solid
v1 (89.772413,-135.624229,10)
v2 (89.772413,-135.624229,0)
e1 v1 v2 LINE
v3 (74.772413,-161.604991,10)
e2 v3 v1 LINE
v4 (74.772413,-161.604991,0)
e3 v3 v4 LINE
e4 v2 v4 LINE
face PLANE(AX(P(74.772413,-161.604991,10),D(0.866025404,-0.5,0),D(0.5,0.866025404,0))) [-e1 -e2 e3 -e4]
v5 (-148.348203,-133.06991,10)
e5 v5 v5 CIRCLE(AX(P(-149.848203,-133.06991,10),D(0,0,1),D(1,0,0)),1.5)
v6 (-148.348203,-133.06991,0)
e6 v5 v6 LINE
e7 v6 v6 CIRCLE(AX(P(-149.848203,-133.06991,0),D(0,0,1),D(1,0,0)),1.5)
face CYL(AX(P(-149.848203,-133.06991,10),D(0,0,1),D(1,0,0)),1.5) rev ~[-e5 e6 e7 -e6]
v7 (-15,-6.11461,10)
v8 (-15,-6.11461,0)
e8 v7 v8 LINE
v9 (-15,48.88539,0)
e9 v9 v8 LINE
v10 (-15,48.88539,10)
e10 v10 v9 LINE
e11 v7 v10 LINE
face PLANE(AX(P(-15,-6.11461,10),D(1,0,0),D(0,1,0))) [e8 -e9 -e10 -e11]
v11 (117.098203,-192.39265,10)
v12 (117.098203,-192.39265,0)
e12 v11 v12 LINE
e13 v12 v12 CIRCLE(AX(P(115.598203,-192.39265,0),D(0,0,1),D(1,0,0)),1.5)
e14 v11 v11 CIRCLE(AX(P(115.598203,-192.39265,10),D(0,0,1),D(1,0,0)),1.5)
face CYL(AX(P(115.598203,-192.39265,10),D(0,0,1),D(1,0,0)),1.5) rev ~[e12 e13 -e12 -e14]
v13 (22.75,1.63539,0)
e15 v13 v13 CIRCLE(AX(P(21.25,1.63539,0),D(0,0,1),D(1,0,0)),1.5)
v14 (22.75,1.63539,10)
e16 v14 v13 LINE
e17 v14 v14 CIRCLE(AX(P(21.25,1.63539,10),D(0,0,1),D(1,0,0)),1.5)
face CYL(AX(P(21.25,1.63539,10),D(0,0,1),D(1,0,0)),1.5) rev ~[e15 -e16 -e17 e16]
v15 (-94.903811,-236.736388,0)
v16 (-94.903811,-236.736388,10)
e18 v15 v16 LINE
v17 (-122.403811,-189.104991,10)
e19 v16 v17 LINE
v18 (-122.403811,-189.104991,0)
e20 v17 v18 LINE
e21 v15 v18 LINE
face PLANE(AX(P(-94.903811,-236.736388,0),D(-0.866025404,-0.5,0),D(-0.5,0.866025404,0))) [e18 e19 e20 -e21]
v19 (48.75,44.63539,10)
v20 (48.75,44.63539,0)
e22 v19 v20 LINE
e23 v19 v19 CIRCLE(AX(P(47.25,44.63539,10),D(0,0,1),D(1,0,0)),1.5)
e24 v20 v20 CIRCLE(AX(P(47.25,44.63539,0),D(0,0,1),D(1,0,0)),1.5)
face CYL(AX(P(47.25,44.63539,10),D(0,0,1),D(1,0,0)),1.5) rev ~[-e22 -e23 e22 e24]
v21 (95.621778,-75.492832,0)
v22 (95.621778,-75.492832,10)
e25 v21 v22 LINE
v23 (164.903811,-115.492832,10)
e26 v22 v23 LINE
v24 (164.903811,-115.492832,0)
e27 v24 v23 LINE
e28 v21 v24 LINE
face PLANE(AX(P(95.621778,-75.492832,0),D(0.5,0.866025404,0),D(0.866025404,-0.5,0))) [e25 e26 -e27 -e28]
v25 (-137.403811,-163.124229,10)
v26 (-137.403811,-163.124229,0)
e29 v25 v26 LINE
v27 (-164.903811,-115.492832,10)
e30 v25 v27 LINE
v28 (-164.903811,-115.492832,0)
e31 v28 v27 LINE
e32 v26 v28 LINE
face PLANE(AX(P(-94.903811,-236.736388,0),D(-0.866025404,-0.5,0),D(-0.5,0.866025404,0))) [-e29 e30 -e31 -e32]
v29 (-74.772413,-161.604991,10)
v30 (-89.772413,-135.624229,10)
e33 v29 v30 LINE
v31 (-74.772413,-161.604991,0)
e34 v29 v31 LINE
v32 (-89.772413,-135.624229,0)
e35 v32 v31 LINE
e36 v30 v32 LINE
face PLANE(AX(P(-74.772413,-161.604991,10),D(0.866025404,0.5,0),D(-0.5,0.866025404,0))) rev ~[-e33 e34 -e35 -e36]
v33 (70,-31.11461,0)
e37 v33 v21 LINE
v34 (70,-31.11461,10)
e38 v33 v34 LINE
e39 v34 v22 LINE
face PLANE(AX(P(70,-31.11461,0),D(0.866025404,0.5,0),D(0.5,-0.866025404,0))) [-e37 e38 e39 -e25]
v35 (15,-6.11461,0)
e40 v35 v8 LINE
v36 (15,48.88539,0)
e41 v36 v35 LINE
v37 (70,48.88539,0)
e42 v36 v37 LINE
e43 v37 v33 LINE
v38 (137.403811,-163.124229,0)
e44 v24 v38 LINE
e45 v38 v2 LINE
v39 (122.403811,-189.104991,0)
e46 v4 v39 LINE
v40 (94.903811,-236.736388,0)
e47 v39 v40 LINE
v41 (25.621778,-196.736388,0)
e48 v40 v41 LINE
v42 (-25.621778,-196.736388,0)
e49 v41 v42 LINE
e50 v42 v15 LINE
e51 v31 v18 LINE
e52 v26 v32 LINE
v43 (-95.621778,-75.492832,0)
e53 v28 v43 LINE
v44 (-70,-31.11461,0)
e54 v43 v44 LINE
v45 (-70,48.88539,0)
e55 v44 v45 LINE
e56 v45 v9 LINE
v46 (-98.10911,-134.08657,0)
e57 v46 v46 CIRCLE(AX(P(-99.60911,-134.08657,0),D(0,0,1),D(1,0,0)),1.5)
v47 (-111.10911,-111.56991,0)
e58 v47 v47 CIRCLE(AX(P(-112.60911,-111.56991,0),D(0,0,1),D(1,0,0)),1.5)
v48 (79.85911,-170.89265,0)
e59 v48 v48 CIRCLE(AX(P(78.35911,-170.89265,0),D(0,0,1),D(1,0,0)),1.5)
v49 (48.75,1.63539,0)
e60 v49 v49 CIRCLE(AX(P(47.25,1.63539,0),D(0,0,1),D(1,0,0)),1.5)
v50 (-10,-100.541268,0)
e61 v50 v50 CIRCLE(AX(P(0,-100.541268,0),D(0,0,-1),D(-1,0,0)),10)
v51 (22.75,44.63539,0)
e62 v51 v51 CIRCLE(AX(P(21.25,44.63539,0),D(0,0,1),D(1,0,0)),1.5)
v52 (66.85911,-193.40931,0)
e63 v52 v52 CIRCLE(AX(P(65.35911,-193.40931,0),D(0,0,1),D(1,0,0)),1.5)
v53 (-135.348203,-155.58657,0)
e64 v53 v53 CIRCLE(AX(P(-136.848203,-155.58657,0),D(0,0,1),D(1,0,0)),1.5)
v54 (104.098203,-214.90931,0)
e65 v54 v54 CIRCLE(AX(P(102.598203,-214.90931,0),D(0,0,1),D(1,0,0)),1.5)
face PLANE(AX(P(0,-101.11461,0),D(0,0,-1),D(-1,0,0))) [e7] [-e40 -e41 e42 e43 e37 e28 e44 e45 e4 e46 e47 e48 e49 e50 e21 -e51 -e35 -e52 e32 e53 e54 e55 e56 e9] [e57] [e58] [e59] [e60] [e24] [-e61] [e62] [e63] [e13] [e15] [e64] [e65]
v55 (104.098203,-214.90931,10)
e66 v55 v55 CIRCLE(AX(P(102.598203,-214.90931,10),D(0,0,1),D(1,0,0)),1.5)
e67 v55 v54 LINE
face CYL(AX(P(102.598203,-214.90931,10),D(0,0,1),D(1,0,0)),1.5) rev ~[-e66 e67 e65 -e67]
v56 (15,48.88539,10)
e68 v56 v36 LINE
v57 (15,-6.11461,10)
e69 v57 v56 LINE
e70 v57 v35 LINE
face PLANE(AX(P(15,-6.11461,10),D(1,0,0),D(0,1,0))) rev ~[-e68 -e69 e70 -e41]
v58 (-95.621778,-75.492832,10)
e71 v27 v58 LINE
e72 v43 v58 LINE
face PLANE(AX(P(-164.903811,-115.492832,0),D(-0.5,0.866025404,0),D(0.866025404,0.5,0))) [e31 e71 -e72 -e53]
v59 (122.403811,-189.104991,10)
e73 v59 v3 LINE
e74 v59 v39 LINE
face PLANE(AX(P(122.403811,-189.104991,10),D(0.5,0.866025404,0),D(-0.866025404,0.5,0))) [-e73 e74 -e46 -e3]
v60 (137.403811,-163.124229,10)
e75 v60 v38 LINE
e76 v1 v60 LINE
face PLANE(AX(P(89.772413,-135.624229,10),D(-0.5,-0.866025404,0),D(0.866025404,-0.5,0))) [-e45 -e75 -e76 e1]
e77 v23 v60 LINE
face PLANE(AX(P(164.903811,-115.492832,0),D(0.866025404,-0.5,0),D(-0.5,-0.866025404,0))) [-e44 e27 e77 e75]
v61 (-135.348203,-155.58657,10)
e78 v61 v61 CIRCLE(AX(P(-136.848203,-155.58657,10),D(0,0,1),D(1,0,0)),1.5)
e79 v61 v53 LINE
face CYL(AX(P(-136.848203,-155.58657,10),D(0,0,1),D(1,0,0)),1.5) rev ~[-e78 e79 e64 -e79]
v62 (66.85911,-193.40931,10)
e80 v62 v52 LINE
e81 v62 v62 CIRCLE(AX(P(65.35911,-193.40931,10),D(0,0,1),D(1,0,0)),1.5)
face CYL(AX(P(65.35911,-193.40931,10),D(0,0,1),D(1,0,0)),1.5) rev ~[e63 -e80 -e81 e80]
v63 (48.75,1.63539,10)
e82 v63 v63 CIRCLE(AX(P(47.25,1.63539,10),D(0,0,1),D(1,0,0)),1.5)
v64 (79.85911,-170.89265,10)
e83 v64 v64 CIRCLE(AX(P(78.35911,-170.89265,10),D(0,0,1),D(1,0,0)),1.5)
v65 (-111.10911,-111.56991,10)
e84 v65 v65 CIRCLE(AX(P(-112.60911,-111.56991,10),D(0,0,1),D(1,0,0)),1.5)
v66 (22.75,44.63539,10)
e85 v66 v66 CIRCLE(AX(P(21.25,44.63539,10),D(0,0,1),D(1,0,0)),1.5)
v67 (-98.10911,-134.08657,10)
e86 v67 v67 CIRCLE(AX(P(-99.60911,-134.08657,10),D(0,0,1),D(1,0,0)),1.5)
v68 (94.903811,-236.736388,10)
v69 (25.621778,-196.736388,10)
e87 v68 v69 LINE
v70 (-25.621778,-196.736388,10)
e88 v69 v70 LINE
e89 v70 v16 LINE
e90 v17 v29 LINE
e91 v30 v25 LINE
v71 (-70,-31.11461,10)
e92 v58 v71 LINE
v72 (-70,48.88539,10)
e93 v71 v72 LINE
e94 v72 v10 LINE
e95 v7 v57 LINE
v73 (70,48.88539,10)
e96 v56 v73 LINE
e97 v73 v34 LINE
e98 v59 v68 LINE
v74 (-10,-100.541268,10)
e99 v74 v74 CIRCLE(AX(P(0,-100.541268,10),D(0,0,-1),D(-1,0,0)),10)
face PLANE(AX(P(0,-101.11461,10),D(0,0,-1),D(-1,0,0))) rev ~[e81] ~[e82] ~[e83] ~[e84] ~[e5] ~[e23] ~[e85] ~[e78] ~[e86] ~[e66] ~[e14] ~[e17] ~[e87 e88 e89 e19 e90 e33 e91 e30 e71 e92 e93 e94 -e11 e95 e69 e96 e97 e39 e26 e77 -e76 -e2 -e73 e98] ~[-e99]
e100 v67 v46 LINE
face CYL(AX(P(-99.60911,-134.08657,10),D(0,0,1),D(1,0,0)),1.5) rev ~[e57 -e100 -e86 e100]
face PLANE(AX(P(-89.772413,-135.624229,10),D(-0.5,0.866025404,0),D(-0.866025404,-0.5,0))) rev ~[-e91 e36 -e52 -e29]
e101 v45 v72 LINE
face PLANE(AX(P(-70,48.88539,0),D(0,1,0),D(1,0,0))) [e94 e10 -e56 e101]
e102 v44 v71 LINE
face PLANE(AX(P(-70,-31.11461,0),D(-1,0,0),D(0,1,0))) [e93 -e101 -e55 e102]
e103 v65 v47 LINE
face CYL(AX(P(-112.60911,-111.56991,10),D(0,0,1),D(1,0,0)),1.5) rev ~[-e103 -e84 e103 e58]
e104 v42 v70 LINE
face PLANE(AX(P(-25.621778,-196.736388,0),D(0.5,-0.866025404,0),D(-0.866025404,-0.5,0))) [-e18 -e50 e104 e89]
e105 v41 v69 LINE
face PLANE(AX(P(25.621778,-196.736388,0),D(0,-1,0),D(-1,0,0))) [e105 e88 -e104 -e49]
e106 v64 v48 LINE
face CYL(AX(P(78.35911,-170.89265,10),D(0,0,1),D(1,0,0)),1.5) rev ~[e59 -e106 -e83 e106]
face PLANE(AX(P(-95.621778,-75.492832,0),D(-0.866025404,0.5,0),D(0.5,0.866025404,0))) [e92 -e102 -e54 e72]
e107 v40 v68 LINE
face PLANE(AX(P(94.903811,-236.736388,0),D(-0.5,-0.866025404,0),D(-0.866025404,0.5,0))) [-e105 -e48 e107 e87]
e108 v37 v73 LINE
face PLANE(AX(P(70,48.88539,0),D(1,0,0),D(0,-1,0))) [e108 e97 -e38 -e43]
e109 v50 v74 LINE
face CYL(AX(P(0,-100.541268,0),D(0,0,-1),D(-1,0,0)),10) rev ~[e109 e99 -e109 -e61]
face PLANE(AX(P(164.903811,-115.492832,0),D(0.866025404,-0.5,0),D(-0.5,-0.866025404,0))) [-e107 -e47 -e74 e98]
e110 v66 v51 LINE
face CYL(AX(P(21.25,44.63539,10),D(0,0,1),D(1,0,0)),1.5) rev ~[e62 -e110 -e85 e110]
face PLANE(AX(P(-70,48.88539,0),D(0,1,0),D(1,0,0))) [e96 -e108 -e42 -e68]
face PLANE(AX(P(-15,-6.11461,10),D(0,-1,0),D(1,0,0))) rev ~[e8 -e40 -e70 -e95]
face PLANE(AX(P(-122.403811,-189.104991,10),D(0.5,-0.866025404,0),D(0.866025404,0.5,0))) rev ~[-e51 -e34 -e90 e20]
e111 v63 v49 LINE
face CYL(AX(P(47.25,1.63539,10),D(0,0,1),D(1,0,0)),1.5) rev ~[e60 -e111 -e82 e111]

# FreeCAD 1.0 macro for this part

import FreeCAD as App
import Part
import Sketcher
from FreeCAD import Vector
Q = App.Units.Quantity

doc = App.newDocument("Part")
params = doc.addObject("Spreadsheet::Sheet", "Params")
for row, (alias, value) in enumerate([
    ("sketch1_width", "140 mm"),
    ("sketch1_height", "80 mm"),
    ("sketch1_length", "80 mm"),
    ("sketch1_length2", "140 mm"),
    ("pad1_length", "10 mm"),
    ("sketch2_diameter", "20 mm"),
    ("sketch3_length", "55 mm"),
    ("sketch3_length2", "30 mm"),
    ("sketch4_length", "30 mm"),
    ("sketch4_length2", "55 mm"),
    ("sketch5_width", "30 mm"),
    ("sketch5_height", "55 mm"),
    ("sketch6_diameter", "3 mm"),
    ("pocket5_length", "10 mm"),
    ("sketch7_diameter", "3 mm"),
    ("pocket6_length", "60 mm"),
], start=1):
    params.set(f"A{row}", alias)
    params.set(f"B{row}", "=" + value)
    params.setAlias(f"B{row}", alias)

body = doc.addObject("PartDesign::Body", "Body")

# Sketch on XY plane
sketch1 = body.newObject("Sketcher::SketchObject", "Sketch")
sketch1.AttachmentSupport = (doc.getObject("XY_Plane"), [""])
sketch1.MapMode = "FlatFace"
sketch1.addGeometry([
    Part.LineSegment(Vector(70, 48.88539, 0), Vector(-70, 48.88539, 0)),  # 0
    Part.LineSegment(Vector(-70, 48.88539, 0), Vector(-70, -31.11461, 0)),  # 1
    Part.LineSegment(Vector(-70, -31.11461, 0), Vector(-95.621778, -75.492832, 0)),  # 2
    Part.LineSegment(Vector(-95.621778, -75.492832, 0), Vector(-164.903811, -115.492832, 0)),  # 3
    Part.LineSegment(Vector(-164.903811, -115.492832, 0), Vector(-94.903811, -236.736388, 0)),  # 4
    Part.LineSegment(Vector(-94.903811, -236.736388, 0), Vector(-25.621778, -196.736388, 0)),  # 5
    Part.LineSegment(Vector(-25.621778, -196.736388, 0), Vector(25.621778, -196.736388, 0)),  # 6
    Part.LineSegment(Vector(25.621778, -196.736388, 0), Vector(94.903811, -236.736388, 0)),  # 7
    Part.LineSegment(Vector(94.903811, -236.736388, 0), Vector(164.903811, -115.492832, 0)),  # 8
    Part.LineSegment(Vector(164.903811, -115.492832, 0), Vector(95.621778, -75.492832, 0)),  # 9
    Part.LineSegment(Vector(95.621778, -75.492832, 0), Vector(70, -31.11461, 0)),  # 10
    Part.LineSegment(Vector(70, -31.11461, 0), Vector(70, 48.88539, 0)),  # 11
], False)
sketch1.addConstraint([
    Sketcher.Constraint("Coincident", 0, 2, 1, 1),
    Sketcher.Constraint("Coincident", 1, 2, 2, 1),
    Sketcher.Constraint("Coincident", 2, 2, 3, 1),
    Sketcher.Constraint("Coincident", 3, 2, 4, 1),
    Sketcher.Constraint("Coincident", 4, 2, 5, 1),
    Sketcher.Constraint("Coincident", 5, 2, 6, 1),
    Sketcher.Constraint("Coincident", 6, 2, 7, 1),
    Sketcher.Constraint("Coincident", 7, 2, 8, 1),
    Sketcher.Constraint("Coincident", 8, 2, 9, 1),
    Sketcher.Constraint("Coincident", 9, 2, 10, 1),
    Sketcher.Constraint("Coincident", 10, 2, 11, 1),
    Sketcher.Constraint("Coincident", 11, 2, 0, 1),
    Sketcher.Constraint("Horizontal", 0),
    Sketcher.Constraint("Vertical", 1),
    Sketcher.Constraint("Horizontal", 6),
    Sketcher.Constraint("Vertical", 11),
    Sketcher.Constraint("Symmetric", 4, 2, 7, 2, -2),
    Sketcher.Constraint("Symmetric", 3, 2, 8, 2, -2),
    Sketcher.Constraint("Symmetric", 2, 2, 9, 2, -2),
    Sketcher.Constraint("Symmetric", 1, 2, 10, 2, -2),
    Sketcher.Constraint("Perpendicular", 3, 4),
    Sketcher.Constraint("Perpendicular", 4, 5),
    Sketcher.Constraint("Perpendicular", 2, 7),
    Sketcher.Constraint("Perpendicular", 7, 8),
    Sketcher.Constraint("Equal", 3, 5),
    Sketcher.Constraint("DistanceX", 0, 2, 0, 1, Q("140 mm")),
    Sketcher.Constraint("DistanceY", 1, 2, 1, 1, Q("80 mm")),
    Sketcher.Constraint("Angle", 2, Q("-120 deg")),
    Sketcher.Constraint("Distance", 3, Q("80 mm")),
    Sketcher.Constraint("Distance", 4, Q("140 mm")),
    Sketcher.Constraint("DistanceX", 6, 1, 6, 2, Q("51.243557 mm")),
    Sketcher.Constraint("DistanceY", -1, 1, 0, 2, Q("48.88539 mm")),
])
sketch1.setExpression("Constraints[25]", "Params.sketch1_width")
sketch1.setExpression("Constraints[26]", "Params.sketch1_height")
sketch1.setExpression("Constraints[28]", "Params.sketch1_length")
sketch1.setExpression("Constraints[29]", "Params.sketch1_length2")
pad1 = body.newObject("PartDesign::Pad", "Pad")
pad1.Profile = sketch1
pad1.setExpression("Length", "Params.pad1_length")

# Sketch on XY plane
sketch2 = body.newObject("Sketcher::SketchObject", "Sketch001")
sketch2.AttachmentSupport = (doc.getObject("XY_Plane"), [""])
sketch2.MapMode = "FlatFace"
sketch2.addGeometry(Part.Circle(Vector(0, -100.541268, 0), Vector(0, 0, 1), 10), False)
sketch2.addConstraint([
    Sketcher.Constraint("PointOnObject", 0, 3, -2),
    Sketcher.Constraint("Diameter", 0, Q("20 mm")),
    Sketcher.Constraint("DistanceY", 0, 3, -1, 1, Q("100.541268 mm")),
])
sketch2.setExpression("Constraints[1]", "Params.sketch2_diameter")
pocket1 = body.newObject("PartDesign::Pocket", "Pocket")
pocket1.Profile = sketch2
pocket1.Type = "ThroughAll"
pocket1.Reversed = True

# Sketch on XY plane
sketch3 = body.newObject("Sketcher::SketchObject", "Sketch002")
sketch3.AttachmentSupport = (doc.getObject("XY_Plane"), [""])
sketch3.MapMode = "FlatFace"
sketch3.AttachmentOffset = App.Placement(Vector(0, 0, 10), App.Rotation())
sketch3.addGeometry([
    Part.LineSegment(Vector(-89.772413, -135.624229, 0), Vector(-137.403811, -163.124229, 0)),
    Part.LineSegment(Vector(-137.403811, -163.124229, 0), Vector(-122.403811, -189.104991, 0)),
    Part.LineSegment(Vector(-122.403811, -189.104991, 0), Vector(-74.772413, -161.604991, 0)),
    Part.LineSegment(Vector(-74.772413, -161.604991, 0), Vector(-89.772413, -135.624229, 0)),
], False)
sketch3.addConstraint([
    Sketcher.Constraint("Coincident", 0, 2, 1, 1),
    Sketcher.Constraint("Coincident", 1, 2, 2, 1),
    Sketcher.Constraint("Coincident", 2, 2, 3, 1),
    Sketcher.Constraint("Coincident", 3, 2, 0, 1),
    Sketcher.Constraint("Perpendicular", 0, 1),
    Sketcher.Constraint("Perpendicular", 1, 2),
    Sketcher.Constraint("Perpendicular", 2, 3),
    Sketcher.Constraint("Angle", 0, Q("-150 deg")),
    Sketcher.Constraint("Distance", 0, Q("55 mm")),
    Sketcher.Constraint("Distance", 1, Q("30 mm")),
    Sketcher.Constraint("DistanceX", 0, 2, -1, 1, Q("137.403811 mm")),
    Sketcher.Constraint("DistanceY", 0, 2, -1, 1, Q("163.124229 mm")),
])
sketch3.setExpression("Constraints[8]", "Params.sketch3_length")
sketch3.setExpression("Constraints[9]", "Params.sketch3_length2")
pocket2 = body.newObject("PartDesign::Pocket", "Pocket001")
pocket2.Profile = sketch3
pocket2.Type = "ThroughAll"

# Sketch on XY plane
sketch4 = body.newObject("Sketcher::SketchObject", "Sketch003")
sketch4.AttachmentSupport = (doc.getObject("XY_Plane"), [""])
sketch4.MapMode = "FlatFace"
sketch4.AttachmentOffset = App.Placement(Vector(0, 0, 10), App.Rotation())
sketch4.addGeometry([
    Part.LineSegment(Vector(122.403811, -189.104991, 0), Vector(137.403811, -163.124229, 0)),
    Part.LineSegment(Vector(137.403811, -163.124229, 0), Vector(89.772413, -135.624229, 0)),
    Part.LineSegment(Vector(89.772413, -135.624229, 0), Vector(74.772413, -161.604991, 0)),
    Part.LineSegment(Vector(74.772413, -161.604991, 0), Vector(122.403811, -189.104991, 0)),
], False)
sketch4.addConstraint([
    Sketcher.Constraint("Coincident", 0, 2, 1, 1),
    Sketcher.Constraint("Coincident", 1, 2, 2, 1),
    Sketcher.Constraint("Coincident", 2, 2, 3, 1),
    Sketcher.Constraint("Coincident", 3, 2, 0, 1),
    Sketcher.Constraint("Perpendicular", 0, 1),
    Sketcher.Constraint("Perpendicular", 1, 2),
    Sketcher.Constraint("Perpendicular", 2, 3),
    Sketcher.Constraint("Angle", 0, Q("60 deg")),
    Sketcher.Constraint("Distance", 0, Q("30 mm")),
    Sketcher.Constraint("Distance", 1, Q("55 mm")),
    Sketcher.Constraint("DistanceX", -1, 1, 0, 2, Q("137.403811 mm")),
    Sketcher.Constraint("DistanceY", 0, 2, -1, 1, Q("163.124229 mm")),
])
sketch4.setExpression("Constraints[8]", "Params.sketch4_length")
sketch4.setExpression("Constraints[9]", "Params.sketch4_length2")
pocket3 = body.newObject("PartDesign::Pocket", "Pocket002")
pocket3.Profile = sketch4
pocket3.Type = "ThroughAll"

# Sketch on XY plane
sketch5 = body.newObject("Sketcher::SketchObject", "Sketch004")
sketch5.AttachmentSupport = (doc.getObject("XY_Plane"), [""])
sketch5.MapMode = "FlatFace"
sketch5.AttachmentOffset = App.Placement(Vector(0, 0, 10), App.Rotation())
sketch5.addGeometry([
    Part.LineSegment(Vector(-15, 48.88539, 0), Vector(-15, -6.11461, 0)),
    Part.LineSegment(Vector(-15, -6.11461, 0), Vector(15, -6.11461, 0)),
    Part.LineSegment(Vector(15, -6.11461, 0), Vector(15, 48.88539, 0)),
    Part.LineSegment(Vector(15, 48.88539, 0), Vector(-15, 48.88539, 0)),
], False)
sketch5.addConstraint([
    Sketcher.Constraint("Coincident", 0, 2, 1, 1),
    Sketcher.Constraint("Coincident", 1, 2, 2, 1),
    Sketcher.Constraint("Coincident", 2, 2, 3, 1),
    Sketcher.Constraint("Coincident", 3, 2, 0, 1),
    Sketcher.Constraint("Vertical", 0),
    Sketcher.Constraint("Horizontal", 1),
    Sketcher.Constraint("Vertical", 2),
    Sketcher.Constraint("Horizontal", 3),
    Sketcher.Constraint("DistanceX", 1, 1, 1, 2, Q("30 mm")),
    Sketcher.Constraint("DistanceY", 0, 2, 0, 1, Q("55 mm")),
    Sketcher.Constraint("DistanceX", 0, 2, -1, 1, Q("15 mm")),
    Sketcher.Constraint("DistanceY", 0, 2, -1, 1, Q("6.11461 mm")),
])
sketch5.setExpression("Constraints[8]", "Params.sketch5_width")
sketch5.setExpression("Constraints[9]", "Params.sketch5_height")
pocket4 = body.newObject("PartDesign::Pocket", "Pocket003")
pocket4.Profile = sketch5
pocket4.Type = "ThroughAll"

# Sketch on XY plane
sketch6 = body.newObject("Sketcher::SketchObject", "Sketch005")
sketch6.AttachmentSupport = (doc.getObject("XY_Plane"), [""])
sketch6.MapMode = "FlatFace"
sketch6.AttachmentOffset = App.Placement(Vector(0, 0, 10), App.Rotation())
sketch6.addGeometry([
    Part.Circle(Vector(-136.848203, -155.58657, 0), Vector(0, 0, 1), 1.5),
    Part.Circle(Vector(-99.60911, -134.08657, 0), Vector(0, 0, 1), 1.5),
    Part.Circle(Vector(-149.848203, -133.06991, 0), Vector(0, 0, 1), 1.5),
    Part.Circle(Vector(-112.60911, -111.56991, 0), Vector(0, 0, 1), 1.5),
], False)
sketch6.addConstraint([
    Sketcher.Constraint("Equal", 0, 1),
    Sketcher.Constraint("Equal", 1, 2),
    Sketcher.Constraint("Equal", 2, 3),
    Sketcher.Constraint("Diameter", 0, Q("3 mm")),
    Sketcher.Constraint("DistanceX", 2, 3, 0, 3, Q("13 mm")),
    Sketcher.Constraint("DistanceX", 3, 3, 1, 3, Q("13 mm")),
    Sketcher.Constraint("DistanceY", 0, 3, 1, 3, Q("21.5 mm")),
    Sketcher.Constraint("DistanceY", 2, 3, 3, 3, Q("21.5 mm")),
    Sketcher.Constraint("DistanceY", 0, 3, -1, 1, Q("155.58657 mm")),
    Sketcher.Constraint("DistanceX", 1, 3, -1, 1, Q("99.60911 mm")),
    Sketcher.Constraint("DistanceY", 2, 3, -1, 1, Q("133.06991 mm")),
    Sketcher.Constraint("DistanceX", 0, 3, -1, 1, Q("136.848203 mm")),
])
sketch6.setExpression("Constraints[3]", "Params.sketch6_diameter")
pocket5 = body.newObject("PartDesign::Pocket", "Pocket004")
pocket5.Profile = sketch6
pocket5.setExpression("Length", "Params.pocket5_length")

# Sketch on XY plane
sketch7 = body.newObject("Sketcher::SketchObject", "Sketch006")
sketch7.AttachmentSupport = (doc.getObject("XY_Plane"), [""])
sketch7.MapMode = "FlatFace"
sketch7.AttachmentOffset = App.Placement(Vector(0, 0, 10), App.Rotation())
sketch7.addGeometry([
    Part.Circle(Vector(21.25, 44.63539, 0), Vector(0, 0, 1), 1.5),  # 0
    Part.Circle(Vector(47.25, 44.63539, 0), Vector(0, 0, 1), 1.5),  # 1
    Part.Circle(Vector(21.25, 1.63539, 0), Vector(0, 0, 1), 1.5),  # 2
    Part.Circle(Vector(47.25, 1.63539, 0), Vector(0, 0, 1), 1.5),  # 3
    Part.Circle(Vector(115.598203, -192.39265, 0), Vector(0, 0, 1), 1.5),  # 4
    Part.Circle(Vector(78.35911, -170.89265, 0), Vector(0, 0, 1), 1.5),  # 5
    Part.Circle(Vector(65.35911, -193.40931, 0), Vector(0, 0, 1), 1.5),  # 6
    Part.Circle(Vector(102.598203, -214.90931, 0), Vector(0, 0, 1), 1.5),  # 7
], False)
sketch7.addConstraint([
    Sketcher.Constraint("Equal", 0, 1),
    Sketcher.Constraint("Equal", 1, 2),
    Sketcher.Constraint("Equal", 2, 3),
    Sketcher.Constraint("Equal", 3, 4),
    Sketcher.Constraint("Equal", 4, 5),
    Sketcher.Constraint("Equal", 5, 6),
    Sketcher.Constraint("Equal", 6, 7),
    Sketcher.Constraint("Horizontal", 0, 3, 1, 3),
    Sketcher.Constraint("Horizontal", 2, 3, 3, 3),
    Sketcher.Constraint("Vertical", 0, 3, 2, 3),
    Sketcher.Constraint("Vertical", 1, 3, 3, 3),
    Sketcher.Constraint("Diameter", 0, Q("3 mm")),
    Sketcher.Constraint("DistanceX", 0, 3, 1, 3, Q("26 mm")),
    Sketcher.Constraint("DistanceY", 2, 3, 0, 3, Q("43 mm")),
    Sketcher.Constraint("DistanceX", 6, 3, 5, 3, Q("13 mm")),
    Sketcher.Constraint("DistanceX", 7, 3, 4, 3, Q("13 mm")),
    Sketcher.Constraint("DistanceY", 4, 3, 5, 3, Q("21.5 mm")),
    Sketcher.Constraint("DistanceY", 7, 3, 6, 3, Q("21.5 mm")),
    Sketcher.Constraint("DistanceX", -1, 1, 0, 3, Q("21.25 mm")),
    Sketcher.Constraint("DistanceY", 6, 3, 3, 3, Q("195.0447 mm")),
    Sketcher.Constraint("DistanceY", -1, 1, 0, 3, Q("44.63539 mm")),
    Sketcher.Constraint("DistanceY", 4, 3, -1, 1, Q("192.39265 mm")),
    Sketcher.Constraint("DistanceX", -1, 1, 5, 3, Q("78.35911 mm")),
    Sketcher.Constraint("DistanceX", -1, 1, 4, 3, Q("115.598203 mm")),
])
sketch7.setExpression("Constraints[11]", "Params.sketch7_diameter")
pocket6 = body.newObject("PartDesign::Pocket", "Pocket005")
pocket6.Profile = sketch7
pocket6.setExpression("Length", "Params.pocket6_length")

doc.recompute()
